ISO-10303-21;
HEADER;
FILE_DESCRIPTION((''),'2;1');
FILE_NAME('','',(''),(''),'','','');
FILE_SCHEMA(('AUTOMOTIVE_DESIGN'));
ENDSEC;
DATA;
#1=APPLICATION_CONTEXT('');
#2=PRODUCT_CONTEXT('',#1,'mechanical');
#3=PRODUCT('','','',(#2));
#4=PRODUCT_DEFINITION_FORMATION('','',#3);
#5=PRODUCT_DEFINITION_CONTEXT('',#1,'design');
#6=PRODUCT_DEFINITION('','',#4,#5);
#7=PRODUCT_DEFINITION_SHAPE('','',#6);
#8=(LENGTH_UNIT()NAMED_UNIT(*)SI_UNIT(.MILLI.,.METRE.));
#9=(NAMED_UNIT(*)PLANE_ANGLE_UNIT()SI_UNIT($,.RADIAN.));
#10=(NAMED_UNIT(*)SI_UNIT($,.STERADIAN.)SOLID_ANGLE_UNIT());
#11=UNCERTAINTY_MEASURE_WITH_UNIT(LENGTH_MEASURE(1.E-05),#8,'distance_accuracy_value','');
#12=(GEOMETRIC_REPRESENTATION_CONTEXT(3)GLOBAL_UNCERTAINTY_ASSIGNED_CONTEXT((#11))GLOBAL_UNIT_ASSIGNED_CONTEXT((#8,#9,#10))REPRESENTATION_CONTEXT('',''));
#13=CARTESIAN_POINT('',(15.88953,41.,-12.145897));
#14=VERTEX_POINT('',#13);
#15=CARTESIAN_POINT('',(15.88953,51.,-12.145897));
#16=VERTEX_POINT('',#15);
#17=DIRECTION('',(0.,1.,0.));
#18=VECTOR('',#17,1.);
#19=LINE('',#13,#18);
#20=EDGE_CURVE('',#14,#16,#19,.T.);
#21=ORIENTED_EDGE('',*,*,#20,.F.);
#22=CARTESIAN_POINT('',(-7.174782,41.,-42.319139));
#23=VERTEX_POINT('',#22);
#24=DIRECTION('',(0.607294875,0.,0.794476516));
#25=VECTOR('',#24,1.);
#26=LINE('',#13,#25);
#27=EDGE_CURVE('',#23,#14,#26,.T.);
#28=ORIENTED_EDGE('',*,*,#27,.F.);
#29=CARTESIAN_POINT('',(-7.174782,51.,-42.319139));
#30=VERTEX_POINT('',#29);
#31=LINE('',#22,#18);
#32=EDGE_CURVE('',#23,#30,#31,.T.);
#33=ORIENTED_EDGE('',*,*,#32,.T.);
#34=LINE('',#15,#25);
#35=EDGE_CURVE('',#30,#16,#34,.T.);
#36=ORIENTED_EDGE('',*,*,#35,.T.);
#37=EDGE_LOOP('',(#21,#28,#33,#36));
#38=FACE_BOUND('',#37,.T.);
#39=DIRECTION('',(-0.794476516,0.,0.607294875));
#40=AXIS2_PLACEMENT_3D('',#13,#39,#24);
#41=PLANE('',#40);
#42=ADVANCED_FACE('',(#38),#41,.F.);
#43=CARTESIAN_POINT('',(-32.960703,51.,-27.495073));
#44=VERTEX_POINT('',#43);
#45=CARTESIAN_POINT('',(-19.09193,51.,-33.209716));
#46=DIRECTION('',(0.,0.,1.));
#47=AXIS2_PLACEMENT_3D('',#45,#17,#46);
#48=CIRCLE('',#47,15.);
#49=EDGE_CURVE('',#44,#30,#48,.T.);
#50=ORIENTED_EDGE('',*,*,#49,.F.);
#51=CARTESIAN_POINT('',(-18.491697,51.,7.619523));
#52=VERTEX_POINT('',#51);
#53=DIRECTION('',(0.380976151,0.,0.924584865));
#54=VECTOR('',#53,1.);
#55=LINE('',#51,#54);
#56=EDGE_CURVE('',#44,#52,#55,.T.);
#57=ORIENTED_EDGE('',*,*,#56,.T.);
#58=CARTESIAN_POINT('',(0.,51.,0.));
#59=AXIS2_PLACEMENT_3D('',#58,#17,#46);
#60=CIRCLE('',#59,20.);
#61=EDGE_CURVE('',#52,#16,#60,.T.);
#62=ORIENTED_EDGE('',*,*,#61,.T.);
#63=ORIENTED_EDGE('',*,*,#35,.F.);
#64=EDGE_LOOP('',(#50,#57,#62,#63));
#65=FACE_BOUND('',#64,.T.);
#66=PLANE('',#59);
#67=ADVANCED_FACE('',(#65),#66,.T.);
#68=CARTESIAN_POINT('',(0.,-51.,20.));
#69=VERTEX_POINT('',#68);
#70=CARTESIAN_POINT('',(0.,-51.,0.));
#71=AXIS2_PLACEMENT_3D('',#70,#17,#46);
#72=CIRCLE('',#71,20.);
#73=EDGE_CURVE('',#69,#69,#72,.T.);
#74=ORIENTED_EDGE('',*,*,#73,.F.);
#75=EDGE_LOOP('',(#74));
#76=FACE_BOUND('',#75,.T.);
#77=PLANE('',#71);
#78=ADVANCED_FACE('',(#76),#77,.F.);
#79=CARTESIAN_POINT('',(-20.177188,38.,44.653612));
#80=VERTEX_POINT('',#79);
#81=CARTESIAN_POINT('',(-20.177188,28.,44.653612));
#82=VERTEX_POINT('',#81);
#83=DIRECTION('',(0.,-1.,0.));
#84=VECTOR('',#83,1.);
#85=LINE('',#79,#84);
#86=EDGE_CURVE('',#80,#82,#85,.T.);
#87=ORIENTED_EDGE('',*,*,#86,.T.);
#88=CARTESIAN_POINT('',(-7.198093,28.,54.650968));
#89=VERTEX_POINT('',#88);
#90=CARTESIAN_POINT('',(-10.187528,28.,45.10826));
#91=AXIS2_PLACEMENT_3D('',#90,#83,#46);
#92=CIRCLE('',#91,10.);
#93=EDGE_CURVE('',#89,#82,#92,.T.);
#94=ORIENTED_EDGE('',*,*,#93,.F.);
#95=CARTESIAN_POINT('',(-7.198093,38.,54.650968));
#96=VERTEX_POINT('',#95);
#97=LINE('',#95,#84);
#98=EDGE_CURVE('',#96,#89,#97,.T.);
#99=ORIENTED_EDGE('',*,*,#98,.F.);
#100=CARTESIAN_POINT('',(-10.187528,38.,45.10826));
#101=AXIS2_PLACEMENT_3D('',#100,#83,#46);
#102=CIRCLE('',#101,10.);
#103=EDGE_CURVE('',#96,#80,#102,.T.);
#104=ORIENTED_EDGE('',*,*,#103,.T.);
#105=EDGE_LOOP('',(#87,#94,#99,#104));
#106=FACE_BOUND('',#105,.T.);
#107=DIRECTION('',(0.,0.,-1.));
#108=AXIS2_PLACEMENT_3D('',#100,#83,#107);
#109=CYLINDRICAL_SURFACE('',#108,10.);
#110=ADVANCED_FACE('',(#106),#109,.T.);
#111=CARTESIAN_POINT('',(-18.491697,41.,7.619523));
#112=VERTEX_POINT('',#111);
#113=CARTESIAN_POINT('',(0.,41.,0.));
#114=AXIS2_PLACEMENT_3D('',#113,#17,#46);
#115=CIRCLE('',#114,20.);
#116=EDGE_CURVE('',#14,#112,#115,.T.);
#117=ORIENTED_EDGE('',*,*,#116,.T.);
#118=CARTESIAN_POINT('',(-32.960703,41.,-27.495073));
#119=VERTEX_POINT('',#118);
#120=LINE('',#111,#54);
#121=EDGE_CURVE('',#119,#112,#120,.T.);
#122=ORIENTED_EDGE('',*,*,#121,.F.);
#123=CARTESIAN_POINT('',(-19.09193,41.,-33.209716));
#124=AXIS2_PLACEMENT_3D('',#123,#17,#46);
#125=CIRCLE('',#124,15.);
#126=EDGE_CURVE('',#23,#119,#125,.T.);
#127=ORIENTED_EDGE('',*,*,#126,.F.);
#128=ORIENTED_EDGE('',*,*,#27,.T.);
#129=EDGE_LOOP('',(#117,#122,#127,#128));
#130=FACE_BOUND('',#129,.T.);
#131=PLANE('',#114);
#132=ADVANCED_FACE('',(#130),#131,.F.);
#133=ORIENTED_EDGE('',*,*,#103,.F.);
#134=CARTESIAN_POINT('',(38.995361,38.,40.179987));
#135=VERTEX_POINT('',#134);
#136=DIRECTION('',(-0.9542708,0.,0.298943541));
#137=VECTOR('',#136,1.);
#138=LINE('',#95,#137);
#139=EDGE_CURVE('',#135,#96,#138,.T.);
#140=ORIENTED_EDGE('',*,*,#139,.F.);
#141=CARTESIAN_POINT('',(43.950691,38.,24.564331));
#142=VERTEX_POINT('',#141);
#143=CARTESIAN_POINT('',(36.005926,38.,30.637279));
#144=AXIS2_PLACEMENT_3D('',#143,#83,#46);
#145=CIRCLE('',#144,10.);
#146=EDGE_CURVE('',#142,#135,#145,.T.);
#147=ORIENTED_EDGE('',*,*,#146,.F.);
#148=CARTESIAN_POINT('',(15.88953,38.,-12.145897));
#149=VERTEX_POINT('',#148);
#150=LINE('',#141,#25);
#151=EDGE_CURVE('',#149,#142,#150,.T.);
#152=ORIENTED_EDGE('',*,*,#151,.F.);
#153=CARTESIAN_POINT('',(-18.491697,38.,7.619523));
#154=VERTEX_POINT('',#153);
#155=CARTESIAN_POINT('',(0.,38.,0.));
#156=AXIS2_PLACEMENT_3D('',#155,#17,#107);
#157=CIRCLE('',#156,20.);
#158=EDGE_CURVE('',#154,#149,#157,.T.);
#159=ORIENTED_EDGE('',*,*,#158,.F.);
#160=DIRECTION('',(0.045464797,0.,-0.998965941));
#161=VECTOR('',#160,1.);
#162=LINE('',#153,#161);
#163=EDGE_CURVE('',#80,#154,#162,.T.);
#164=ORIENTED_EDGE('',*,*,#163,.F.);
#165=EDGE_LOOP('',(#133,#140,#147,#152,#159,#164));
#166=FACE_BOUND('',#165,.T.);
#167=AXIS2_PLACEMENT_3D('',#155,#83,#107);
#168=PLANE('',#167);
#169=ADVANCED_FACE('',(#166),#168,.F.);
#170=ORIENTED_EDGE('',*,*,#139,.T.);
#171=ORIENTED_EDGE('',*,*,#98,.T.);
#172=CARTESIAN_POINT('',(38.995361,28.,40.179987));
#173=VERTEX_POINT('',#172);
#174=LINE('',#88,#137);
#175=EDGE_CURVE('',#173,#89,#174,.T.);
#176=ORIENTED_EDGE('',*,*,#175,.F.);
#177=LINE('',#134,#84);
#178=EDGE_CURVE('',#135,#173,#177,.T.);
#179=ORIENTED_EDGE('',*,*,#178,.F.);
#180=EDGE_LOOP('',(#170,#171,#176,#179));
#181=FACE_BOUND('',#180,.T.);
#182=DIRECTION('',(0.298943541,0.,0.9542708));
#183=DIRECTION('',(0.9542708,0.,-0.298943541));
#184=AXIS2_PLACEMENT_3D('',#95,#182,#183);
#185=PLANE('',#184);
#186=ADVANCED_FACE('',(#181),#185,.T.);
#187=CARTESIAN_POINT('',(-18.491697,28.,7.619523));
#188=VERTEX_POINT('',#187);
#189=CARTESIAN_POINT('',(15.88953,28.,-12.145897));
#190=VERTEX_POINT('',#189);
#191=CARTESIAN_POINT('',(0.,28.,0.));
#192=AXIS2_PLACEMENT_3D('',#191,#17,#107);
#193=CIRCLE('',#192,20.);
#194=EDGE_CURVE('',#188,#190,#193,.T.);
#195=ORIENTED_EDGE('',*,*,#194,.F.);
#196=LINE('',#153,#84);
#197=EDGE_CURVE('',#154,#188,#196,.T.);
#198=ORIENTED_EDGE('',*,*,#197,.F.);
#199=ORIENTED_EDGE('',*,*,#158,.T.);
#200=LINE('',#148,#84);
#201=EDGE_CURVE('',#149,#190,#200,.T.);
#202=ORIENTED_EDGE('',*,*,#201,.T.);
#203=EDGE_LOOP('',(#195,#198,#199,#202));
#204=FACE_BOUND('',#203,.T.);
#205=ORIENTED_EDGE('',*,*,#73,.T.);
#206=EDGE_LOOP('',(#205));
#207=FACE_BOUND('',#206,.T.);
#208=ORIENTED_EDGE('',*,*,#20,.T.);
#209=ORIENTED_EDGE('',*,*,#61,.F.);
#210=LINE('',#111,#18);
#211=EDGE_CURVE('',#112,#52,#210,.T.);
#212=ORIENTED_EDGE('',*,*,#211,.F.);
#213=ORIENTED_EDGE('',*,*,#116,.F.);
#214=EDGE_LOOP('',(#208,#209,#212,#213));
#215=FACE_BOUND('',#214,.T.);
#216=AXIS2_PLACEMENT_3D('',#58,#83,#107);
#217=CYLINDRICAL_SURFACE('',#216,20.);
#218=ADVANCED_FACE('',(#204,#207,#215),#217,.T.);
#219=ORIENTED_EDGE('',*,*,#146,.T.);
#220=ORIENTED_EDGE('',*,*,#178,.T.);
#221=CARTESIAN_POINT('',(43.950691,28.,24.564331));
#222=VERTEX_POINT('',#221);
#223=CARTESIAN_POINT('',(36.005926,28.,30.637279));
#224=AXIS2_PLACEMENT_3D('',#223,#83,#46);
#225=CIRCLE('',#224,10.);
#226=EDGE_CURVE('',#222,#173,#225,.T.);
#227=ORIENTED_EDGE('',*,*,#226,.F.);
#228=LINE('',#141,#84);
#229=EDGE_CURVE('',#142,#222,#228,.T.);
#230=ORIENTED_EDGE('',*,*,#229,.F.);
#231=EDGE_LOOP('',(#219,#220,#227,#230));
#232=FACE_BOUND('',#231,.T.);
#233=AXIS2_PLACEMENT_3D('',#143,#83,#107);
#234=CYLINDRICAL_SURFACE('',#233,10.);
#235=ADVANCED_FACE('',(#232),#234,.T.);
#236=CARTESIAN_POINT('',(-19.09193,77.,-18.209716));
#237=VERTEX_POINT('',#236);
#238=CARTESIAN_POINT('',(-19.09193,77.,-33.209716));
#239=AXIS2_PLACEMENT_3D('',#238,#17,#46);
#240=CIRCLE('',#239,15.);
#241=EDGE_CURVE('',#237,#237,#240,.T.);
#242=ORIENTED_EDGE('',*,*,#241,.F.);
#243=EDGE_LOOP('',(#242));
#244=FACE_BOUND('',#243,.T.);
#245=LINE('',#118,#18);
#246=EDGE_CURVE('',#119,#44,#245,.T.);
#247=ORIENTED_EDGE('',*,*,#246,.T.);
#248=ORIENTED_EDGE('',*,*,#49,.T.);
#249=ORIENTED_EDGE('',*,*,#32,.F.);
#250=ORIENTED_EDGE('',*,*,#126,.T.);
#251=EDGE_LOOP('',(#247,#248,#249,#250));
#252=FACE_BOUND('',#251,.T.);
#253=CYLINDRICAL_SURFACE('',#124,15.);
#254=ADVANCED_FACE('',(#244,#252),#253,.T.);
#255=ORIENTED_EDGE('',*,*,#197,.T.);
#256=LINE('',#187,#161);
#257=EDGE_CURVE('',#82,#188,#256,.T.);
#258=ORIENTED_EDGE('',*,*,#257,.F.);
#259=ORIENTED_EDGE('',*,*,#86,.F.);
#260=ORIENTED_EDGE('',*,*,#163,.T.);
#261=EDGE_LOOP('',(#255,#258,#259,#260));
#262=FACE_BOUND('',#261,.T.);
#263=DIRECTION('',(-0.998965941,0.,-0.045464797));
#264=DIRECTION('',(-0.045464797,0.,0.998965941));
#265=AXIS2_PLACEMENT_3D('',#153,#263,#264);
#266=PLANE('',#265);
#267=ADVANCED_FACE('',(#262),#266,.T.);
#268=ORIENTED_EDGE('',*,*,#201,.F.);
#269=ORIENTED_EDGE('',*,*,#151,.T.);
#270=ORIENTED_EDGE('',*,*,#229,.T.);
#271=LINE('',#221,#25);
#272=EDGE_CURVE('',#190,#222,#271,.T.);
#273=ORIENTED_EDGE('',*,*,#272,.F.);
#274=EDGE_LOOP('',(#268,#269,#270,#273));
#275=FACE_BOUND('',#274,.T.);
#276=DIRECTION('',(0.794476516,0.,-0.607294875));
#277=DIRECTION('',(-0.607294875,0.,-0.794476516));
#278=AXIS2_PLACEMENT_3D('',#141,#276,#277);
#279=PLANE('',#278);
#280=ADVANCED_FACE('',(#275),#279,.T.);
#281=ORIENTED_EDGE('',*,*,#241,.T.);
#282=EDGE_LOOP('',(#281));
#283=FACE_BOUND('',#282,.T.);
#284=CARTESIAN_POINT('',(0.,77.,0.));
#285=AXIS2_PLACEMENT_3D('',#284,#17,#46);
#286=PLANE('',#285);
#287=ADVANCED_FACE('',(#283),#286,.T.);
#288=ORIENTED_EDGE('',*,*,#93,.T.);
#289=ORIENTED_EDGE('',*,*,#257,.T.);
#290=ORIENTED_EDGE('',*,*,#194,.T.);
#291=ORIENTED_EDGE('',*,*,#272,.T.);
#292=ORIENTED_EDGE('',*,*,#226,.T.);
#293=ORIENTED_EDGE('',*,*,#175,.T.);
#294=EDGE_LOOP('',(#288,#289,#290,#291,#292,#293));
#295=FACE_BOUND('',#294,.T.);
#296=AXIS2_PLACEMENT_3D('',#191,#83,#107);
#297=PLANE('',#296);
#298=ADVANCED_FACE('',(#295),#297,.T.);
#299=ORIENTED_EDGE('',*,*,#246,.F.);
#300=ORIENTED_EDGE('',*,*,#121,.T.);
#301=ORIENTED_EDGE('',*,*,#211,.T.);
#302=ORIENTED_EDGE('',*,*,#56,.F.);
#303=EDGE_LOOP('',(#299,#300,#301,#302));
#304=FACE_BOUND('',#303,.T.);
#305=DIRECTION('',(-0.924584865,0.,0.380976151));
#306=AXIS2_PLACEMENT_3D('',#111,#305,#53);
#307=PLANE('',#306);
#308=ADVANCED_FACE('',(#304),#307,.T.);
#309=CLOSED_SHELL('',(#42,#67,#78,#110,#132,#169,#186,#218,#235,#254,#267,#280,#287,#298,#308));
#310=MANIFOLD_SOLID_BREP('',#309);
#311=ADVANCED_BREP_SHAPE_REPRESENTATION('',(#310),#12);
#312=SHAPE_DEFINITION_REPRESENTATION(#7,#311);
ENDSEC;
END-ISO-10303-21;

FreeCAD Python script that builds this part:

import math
import FreeCAD as App
import Part
import Sketcher

V = App.Vector

doc = App.newDocument("Part")
body = doc.addObject("PartDesign::Body", "Body")

sketch1 = body.newObject("Sketcher::SketchObject", "Sketch")
sketch1.AttachmentSupport = (doc.getObject("XZ_Plane"), [""])
sketch1.MapMode = "FlatFace"
sketch1.addGeometry(Part.Circle(V(0, 0, 0), V(0, 0, 1), 20), False)
sketch1.addConstraint([
    Sketcher.Constraint("Coincident", 0, 3, -1, 1),
    Sketcher.Constraint("Diameter", 0, 40.0),
])
pad1 = body.newObject("PartDesign::Pad", "Pad")
pad1.Profile = sketch1
pad1.Length = 102
pad1.Midplane = True

sketch2 = body.newObject("Sketcher::SketchObject", "Sketch001")
sketch2.AttachmentSupport = (doc.getObject("XZ_Plane"), [""])
sketch2.MapMode = "FlatFace"
sketch2.AttachmentOffset = App.Placement(V(0, 0, -51), App.Rotation())
sketch2.addGeometry([
    Part.LineSegment(V(16, -12, 0), V(-7, -42, 0)),
    Part.ArcOfCircle(Part.Circle(V(-19, -33, 0), V(0, 0, 1), 15), math.radians(158), math.radians(323)),
    Part.LineSegment(V(-33, -27, 0), V(-18, 8, 0)),
    Part.ArcOfCircle(Part.Circle(V(0, 0, 0), V(0, 0, 1), 20), math.radians(158), math.radians(323)),
], False)
sketch2.addConstraint([
    Sketcher.Constraint("Tangent", 0, 2, 1, 2),
    Sketcher.Constraint("Tangent", 1, 1, 2, 1),
    Sketcher.Constraint("Tangent", 2, 2, 3, 1),
    Sketcher.Constraint("Tangent", 3, 2, 0, 1),
    Sketcher.Constraint("Coincident", 3, 3, -1, 1),
    Sketcher.Constraint("Radius", 1, 15.0),
    Sketcher.Constraint("Radius", 3, 20.0),
    Sketcher.Constraint("Distance", 0, 37.978771),
    Sketcher.Constraint("DistanceX", 1, 3, -1, 1, 19.09193),
])
pad2 = body.newObject("PartDesign::Pad", "Pad001")
pad2.Profile = sketch2
pad2.Length = 10

sketch3 = body.newObject("Sketcher::SketchObject", "Sketch002")
sketch3.AttachmentSupport = (doc.getObject("XZ_Plane"), [""])
sketch3.MapMode = "FlatFace"
sketch3.AttachmentOffset = App.Placement(V(0, 0, -51), App.Rotation())
sketch3.addGeometry([
    Part.ArcOfCircle(Part.Circle(V(-19, -33, 0), V(0, 0, 1), 15), math.radians(-37), math.radians(0)),
    Part.ArcOfCircle(Part.Circle(V(-19, -33, 0), V(0, 0, 1), 15), math.radians(158), math.radians(323)),
    Part.ArcOfCircle(Part.Circle(V(-19, -33, 0), V(0, 0, 1), 15), math.radians(0), math.radians(158)),
], False)
sketch3.addConstraint([
    Sketcher.Constraint("Tangent", 0, 1, 1, 2),
    Sketcher.Constraint("Tangent", 1, 1, 2, 2),
    Sketcher.Constraint("Tangent", 2, 1, 0, 2),
    Sketcher.Constraint("Horizontal", 1, 3, 2, 1),
    Sketcher.Constraint("Radius", 0, 15.0),
    Sketcher.Constraint("DistanceX", 0, 3, -1, 1, 19.09193),
    Sketcher.Constraint("DistanceY", 0, 1, -1, 1, 42.319139),
    Sketcher.Constraint("DistanceX", 1, 1, 0, 1, 25.785921),
    Sketcher.Constraint("DistanceY", 0, 3, -1, 1, 33.209716),
])
pad3 = body.newObject("PartDesign::Pad", "Pad002")
pad3.Profile = sketch3
pad3.Length = 26
pad3.Reversed = True

sketch4 = body.newObject("Sketcher::SketchObject", "Sketch003")
sketch4.AttachmentSupport = (doc.getObject("XZ_Plane"), [""])
sketch4.MapMode = "FlatFace"
sketch4.AttachmentOffset = App.Placement(V(0, 0, -28), App.Rotation())
sketch4.addGeometry([
    Part.LineSegment(V(-20, 45, 0), V(-18, 8, 0)),
    Part.ArcOfCircle(Part.Circle(V(0, 0, 0), V(0, 0, 1), 20), math.radians(-37), math.radians(158)),
    Part.LineSegment(V(16, -12, 0), V(44, 25, 0)),
    Part.ArcOfCircle(Part.Circle(V(36, 31, 0), V(0, 0, 1), 10), math.radians(-37), math.radians(73)),
    Part.LineSegment(V(39, 40, 0), V(-7, 55, 0)),
    Part.ArcOfCircle(Part.Circle(V(-10, 45, 0), V(0, 0, 1), 10), math.radians(73), math.radians(183)),
], False)
sketch4.addConstraint([
    Sketcher.Constraint("Coincident", 0, 2, 1, 2),
    Sketcher.Constraint("Tangent", 1, 1, 2, 1),
    Sketcher.Constraint("Tangent", 2, 2, 3, 1),
    Sketcher.Constraint("Tangent", 3, 2, 4, 1),
    Sketcher.Constraint("Tangent", 4, 2, 5, 1),
    Sketcher.Constraint("Tangent", 5, 2, 0, 1),
    Sketcher.Constraint("Coincident", 1, 3, -1, 1),
    Sketcher.Constraint("Equal", 3, 5),
    Sketcher.Constraint("Radius", 1, 20.0),
    Sketcher.Constraint("Radius", 3, 10.0),
    Sketcher.Constraint("Distance", 4, 48.407071),
    Sketcher.Constraint("DistanceY", -1, 1, 3, 3, 30.637279),
    Sketcher.Constraint("DistanceX", 5, 3, -1, 1, 10.187528),
    Sketcher.Constraint("DistanceY", -1, 1, 5, 3, 45.10826),
    Sketcher.Constraint("DistanceX", 0, 2, 5, 3, 8.304169),
])
pad4 = body.newObject("PartDesign::Pad", "Pad003")
pad4.Profile = sketch4
pad4.Length = 10
pad4.Reversed = True

doc.recompute()
